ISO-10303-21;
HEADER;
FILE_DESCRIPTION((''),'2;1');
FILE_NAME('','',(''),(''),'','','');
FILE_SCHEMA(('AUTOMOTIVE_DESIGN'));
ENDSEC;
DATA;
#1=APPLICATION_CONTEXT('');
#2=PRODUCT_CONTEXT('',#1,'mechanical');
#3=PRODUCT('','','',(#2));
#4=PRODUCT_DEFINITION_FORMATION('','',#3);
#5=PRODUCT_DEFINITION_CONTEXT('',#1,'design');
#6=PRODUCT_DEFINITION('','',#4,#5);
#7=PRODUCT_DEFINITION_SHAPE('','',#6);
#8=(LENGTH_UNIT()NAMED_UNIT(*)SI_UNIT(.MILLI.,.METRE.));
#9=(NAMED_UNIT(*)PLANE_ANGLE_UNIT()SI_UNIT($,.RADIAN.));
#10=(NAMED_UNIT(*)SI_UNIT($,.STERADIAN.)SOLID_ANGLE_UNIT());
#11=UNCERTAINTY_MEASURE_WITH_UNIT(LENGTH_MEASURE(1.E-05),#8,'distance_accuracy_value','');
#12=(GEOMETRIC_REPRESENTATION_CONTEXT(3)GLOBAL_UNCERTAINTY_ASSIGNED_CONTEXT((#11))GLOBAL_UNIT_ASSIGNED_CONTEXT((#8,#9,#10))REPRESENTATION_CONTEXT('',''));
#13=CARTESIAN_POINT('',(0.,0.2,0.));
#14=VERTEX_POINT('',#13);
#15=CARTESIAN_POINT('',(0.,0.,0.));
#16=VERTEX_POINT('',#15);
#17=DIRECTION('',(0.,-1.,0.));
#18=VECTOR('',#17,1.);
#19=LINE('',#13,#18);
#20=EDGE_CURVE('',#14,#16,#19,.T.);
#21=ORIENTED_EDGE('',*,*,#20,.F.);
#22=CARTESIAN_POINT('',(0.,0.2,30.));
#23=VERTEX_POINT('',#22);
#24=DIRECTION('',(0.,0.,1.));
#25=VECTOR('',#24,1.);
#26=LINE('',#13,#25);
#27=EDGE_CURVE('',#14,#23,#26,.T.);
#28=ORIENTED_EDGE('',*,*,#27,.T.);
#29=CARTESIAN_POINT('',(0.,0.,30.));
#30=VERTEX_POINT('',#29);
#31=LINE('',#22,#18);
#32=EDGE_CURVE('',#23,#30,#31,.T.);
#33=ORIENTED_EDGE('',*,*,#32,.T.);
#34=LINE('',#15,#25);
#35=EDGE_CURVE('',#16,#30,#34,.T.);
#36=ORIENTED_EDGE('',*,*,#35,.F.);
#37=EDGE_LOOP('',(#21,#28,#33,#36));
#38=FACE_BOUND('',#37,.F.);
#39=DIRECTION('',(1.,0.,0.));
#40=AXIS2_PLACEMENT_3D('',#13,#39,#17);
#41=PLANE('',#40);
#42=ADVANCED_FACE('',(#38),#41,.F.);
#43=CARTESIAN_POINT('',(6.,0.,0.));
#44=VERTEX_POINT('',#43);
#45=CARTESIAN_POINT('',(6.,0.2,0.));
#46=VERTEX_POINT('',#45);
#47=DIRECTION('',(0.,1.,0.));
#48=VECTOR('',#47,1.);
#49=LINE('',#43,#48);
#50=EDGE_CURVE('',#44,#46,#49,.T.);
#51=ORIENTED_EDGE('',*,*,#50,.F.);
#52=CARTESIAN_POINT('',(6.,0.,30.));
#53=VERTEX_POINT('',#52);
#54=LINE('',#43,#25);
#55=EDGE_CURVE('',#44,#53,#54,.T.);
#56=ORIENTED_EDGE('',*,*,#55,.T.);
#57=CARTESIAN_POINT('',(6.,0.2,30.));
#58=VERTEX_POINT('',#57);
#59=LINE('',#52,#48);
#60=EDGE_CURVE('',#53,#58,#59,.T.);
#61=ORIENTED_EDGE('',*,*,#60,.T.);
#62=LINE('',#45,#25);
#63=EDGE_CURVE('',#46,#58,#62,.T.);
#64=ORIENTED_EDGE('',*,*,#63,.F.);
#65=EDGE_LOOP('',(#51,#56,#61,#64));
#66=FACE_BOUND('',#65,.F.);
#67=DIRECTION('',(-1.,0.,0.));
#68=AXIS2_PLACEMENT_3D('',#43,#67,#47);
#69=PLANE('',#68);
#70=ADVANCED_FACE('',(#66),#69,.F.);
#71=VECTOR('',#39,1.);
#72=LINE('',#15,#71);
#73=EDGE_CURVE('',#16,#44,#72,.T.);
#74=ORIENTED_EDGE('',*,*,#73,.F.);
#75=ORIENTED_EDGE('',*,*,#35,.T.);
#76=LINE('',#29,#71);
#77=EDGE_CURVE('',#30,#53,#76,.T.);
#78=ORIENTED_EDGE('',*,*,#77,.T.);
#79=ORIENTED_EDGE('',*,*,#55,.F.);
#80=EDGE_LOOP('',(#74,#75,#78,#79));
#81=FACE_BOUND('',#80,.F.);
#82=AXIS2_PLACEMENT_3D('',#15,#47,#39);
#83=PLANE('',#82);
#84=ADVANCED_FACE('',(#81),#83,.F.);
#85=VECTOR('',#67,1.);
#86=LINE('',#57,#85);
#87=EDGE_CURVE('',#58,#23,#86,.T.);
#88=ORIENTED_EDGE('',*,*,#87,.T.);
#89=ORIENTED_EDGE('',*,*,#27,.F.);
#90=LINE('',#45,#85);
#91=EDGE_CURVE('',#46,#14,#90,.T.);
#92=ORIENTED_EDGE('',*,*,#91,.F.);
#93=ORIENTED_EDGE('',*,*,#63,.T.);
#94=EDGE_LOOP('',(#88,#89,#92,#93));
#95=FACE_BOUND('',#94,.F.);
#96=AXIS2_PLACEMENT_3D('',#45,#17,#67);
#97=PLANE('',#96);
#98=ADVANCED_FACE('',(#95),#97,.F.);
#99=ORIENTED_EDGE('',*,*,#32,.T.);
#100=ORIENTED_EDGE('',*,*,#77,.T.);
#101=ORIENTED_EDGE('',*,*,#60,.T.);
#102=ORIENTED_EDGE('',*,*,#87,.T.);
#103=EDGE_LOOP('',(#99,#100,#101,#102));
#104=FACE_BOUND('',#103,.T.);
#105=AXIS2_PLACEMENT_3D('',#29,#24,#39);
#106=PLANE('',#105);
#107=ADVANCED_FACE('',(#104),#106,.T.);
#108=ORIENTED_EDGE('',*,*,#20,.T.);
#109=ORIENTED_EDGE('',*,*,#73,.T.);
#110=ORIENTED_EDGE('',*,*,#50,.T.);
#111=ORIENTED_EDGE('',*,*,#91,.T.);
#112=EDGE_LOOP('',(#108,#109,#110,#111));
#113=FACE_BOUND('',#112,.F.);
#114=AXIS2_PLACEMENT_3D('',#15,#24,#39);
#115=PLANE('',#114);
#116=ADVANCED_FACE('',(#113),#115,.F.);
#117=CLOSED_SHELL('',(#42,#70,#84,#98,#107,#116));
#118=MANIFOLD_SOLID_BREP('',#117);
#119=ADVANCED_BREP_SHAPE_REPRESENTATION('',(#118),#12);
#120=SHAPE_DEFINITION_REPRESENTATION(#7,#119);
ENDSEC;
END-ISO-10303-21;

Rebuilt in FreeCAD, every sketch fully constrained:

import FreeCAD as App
import Part
import Sketcher


def add_polygon(sketch, points):
    """Adds a closed chain of lines whose ends are joined by coincident constraints."""
    first, n = sketch.GeometryCount, len(points)
    for a, b in zip(points, points[1:] + points[:1]):
        sketch.addGeometry(Part.LineSegment(App.Vector(*a, 0), App.Vector(*b, 0)), False)
    for i in range(n):
        sketch.addConstraint(Sketcher.Constraint("Coincident", first + i, 2, first + (i + 1) % n, 1))

doc = App.newDocument("Part")
body = doc.addObject("PartDesign::Body", "Body")

sketch1 = body.newObject("Sketcher::SketchObject", "Sketch")
sketch1.AttachmentSupport = (doc.getObject("XY_Plane"), [""])
sketch1.MapMode = "FlatFace"
add_polygon(sketch1, [(0, 0.2), (0, 0), (6, 0), (6, 0.2)])
sketch1.addConstraint(Sketcher.Constraint("Vertical", 0))
sketch1.addConstraint(Sketcher.Constraint("Horizontal", 1))
sketch1.addConstraint(Sketcher.Constraint("Vertical", 2))
sketch1.addConstraint(Sketcher.Constraint("Horizontal", 3))
sketch1.addConstraint(Sketcher.Constraint("Coincident", 0, 2, -1, 1))
sketch1.addConstraint(Sketcher.Constraint("DistanceX", 1, 1, 1, 2, 6.0))
sketch1.addConstraint(Sketcher.Constraint("DistanceY", 0, 2, 0, 1, 0.2))
pad1 = body.newObject("PartDesign::Pad", "Pad")
pad1.Profile = sketch1
pad1.Length = 30

doc.recompute()
